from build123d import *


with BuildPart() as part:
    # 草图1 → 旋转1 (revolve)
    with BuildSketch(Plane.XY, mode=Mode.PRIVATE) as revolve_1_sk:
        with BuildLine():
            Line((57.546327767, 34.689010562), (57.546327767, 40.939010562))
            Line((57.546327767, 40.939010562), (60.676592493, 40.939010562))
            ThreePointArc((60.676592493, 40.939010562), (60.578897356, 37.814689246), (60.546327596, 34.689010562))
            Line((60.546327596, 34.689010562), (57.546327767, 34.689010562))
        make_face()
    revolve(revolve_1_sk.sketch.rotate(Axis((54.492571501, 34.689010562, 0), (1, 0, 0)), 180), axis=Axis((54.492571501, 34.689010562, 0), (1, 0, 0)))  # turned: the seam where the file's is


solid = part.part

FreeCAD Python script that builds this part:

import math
import FreeCAD as App
import Part
import Sketcher

V = App.Vector

doc = App.newDocument("Part")
body = doc.addObject("PartDesign::Body", "Body")

# Sketch on XY plane
sketch1 = body.newObject("Sketcher::SketchObject", "Sketch")
sketch1.AttachmentSupport = (doc.getObject("XY_Plane"), [""])
sketch1.MapMode = "FlatFace"
sketch1.addGeometry(Part.LineSegment(V(57.5, 40.9, 0), V(57.5, 34.7, 0)), False)
sketch1.addGeometry(Part.LineSegment(V(57.5, 34.7, 0), V(60.5, 34.7, 0)), False)
sketch1.addGeometry(Part.ArcOfCircle(Part.Circle(V(210.5, 34.7, 0), V(0, 0, 1), 150), math.radians(177.61), math.radians(180)), False)
sketch1.addGeometry(Part.LineSegment(V(60.7, 40.9, 0), V(57.5, 40.9, 0)), False)
sketch1.addGeometry(Part.LineSegment(V(57.5, 34.7, 0), V(210.5, 34.7, 0)), True)  # axis
sketch1.addConstraint(Sketcher.Constraint("Coincident", 0, 2, 1, 1))
sketch1.addConstraint(Sketcher.Constraint("Coincident", 1, 2, 2, 2))
sketch1.addConstraint(Sketcher.Constraint("Coincident", 2, 1, 3, 1))
sketch1.addConstraint(Sketcher.Constraint("Coincident", 3, 2, 0, 1))
sketch1.addConstraint(Sketcher.Constraint("Vertical", 0))
sketch1.addConstraint(Sketcher.Constraint("Horizontal", 1))
sketch1.addConstraint(Sketcher.Constraint("Horizontal", 3))
sketch1.addConstraint(Sketcher.Constraint("Horizontal", 4))
sketch1.addConstraint(Sketcher.Constraint("Coincident", 4, 1, 0, 2))
sketch1.addConstraint(Sketcher.Constraint("Coincident", 4, 2, 2, 3))
sketch1.addConstraint(Sketcher.Constraint("Radius", 2, 149.999998))
sketch1.addConstraint(Sketcher.Constraint("DistanceX", 1, 1, 1, 2, 3.0))
sketch1.addConstraint(Sketcher.Constraint("DistanceY", 0, 2, 0, 1, 6.25))
sketch1.addConstraint(Sketcher.Constraint("DistanceY", -1, 1, 2, 3, 34.689011))
sketch1.addConstraint(Sketcher.Constraint("DistanceX", -1, 1, 2, 3, 210.546326))
revolution = body.newObject("PartDesign::Revolution", "Revolution")
revolution.Profile = sketch1
revolution.ReferenceAxis = (sketch1, ["Axis0"])
revolution.Angle = 360

doc.recompute()
